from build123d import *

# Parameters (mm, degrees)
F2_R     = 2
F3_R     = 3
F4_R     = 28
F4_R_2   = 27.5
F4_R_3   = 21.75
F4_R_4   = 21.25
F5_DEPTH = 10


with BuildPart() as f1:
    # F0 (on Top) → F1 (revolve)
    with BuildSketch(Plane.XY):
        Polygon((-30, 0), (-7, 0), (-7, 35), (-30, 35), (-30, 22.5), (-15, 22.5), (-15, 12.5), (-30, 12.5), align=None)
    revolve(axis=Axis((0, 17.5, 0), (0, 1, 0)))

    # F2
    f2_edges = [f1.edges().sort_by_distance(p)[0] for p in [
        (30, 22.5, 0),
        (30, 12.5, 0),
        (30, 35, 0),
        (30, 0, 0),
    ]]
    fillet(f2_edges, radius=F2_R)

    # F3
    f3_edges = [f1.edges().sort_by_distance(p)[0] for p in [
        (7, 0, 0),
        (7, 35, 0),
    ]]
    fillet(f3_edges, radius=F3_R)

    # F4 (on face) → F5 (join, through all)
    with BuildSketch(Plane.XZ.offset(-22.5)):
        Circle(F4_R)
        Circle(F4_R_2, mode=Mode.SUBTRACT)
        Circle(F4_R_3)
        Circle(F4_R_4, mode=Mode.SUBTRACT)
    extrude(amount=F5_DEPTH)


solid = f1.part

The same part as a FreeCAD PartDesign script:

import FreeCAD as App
import Part
import Sketcher


def edges_at(feature, points):
    """Names of the edges that pass closest to the given points."""
    edges = feature.Shape.Edges
    near = lambda p: min(range(len(edges)), key=lambda i: edges[i].distToShape(Part.Vertex(*p))[0])
    return sorted({f"Edge{near(p) + 1}" for p in points})


def add_polygon(sketch, points):
    """Adds a closed chain of lines whose ends are joined by coincident constraints."""
    first, n = sketch.GeometryCount, len(points)
    for a, b in zip(points, points[1:] + points[:1]):
        sketch.addGeometry(Part.LineSegment(App.Vector(*a, 0), App.Vector(*b, 0)), False)
    for i in range(n):
        sketch.addConstraint(Sketcher.Constraint("Coincident", first + i, 2, first + (i + 1) % n, 1))

doc = App.newDocument("Part")
body = doc.addObject("PartDesign::Body", "Body")

# Sketch on XY plane
sketch1 = body.newObject("Sketcher::SketchObject", "Sketch")
sketch1.AttachmentSupport = (doc.getObject("XY_Plane"), [""])
sketch1.MapMode = "FlatFace"
add_polygon(sketch1, [(-30, 0), (-7, 0), (-7, 35), (-30, 35), (-30, 22), (-15, 22), (-15, 12), (-30, 12)])  # lines 0-7
sketch1.addConstraint([
    Sketcher.Constraint("Horizontal", 0),
    Sketcher.Constraint("Vertical", 1),
    Sketcher.Constraint("Horizontal", 2),
    Sketcher.Constraint("Vertical", 3),
    Sketcher.Constraint("Horizontal", 4),
    Sketcher.Constraint("Vertical", 5),
    Sketcher.Constraint("Horizontal", 6),
    Sketcher.Constraint("Vertical", 7),
    Sketcher.Constraint("PointOnObject", 0, 2, -1),
    Sketcher.Constraint("Vertical", 3, 2, 6, 2),
    Sketcher.Constraint("Equal", 3, 7),
    Sketcher.Constraint("DistanceX", 0, 1, 0, 2, 23.0),
    Sketcher.Constraint("DistanceX", 4, 1, 4, 2, 15.0),
    Sketcher.Constraint("DistanceY", 1, 1, 1, 2, 35.0),
    Sketcher.Constraint("DistanceY", 5, 2, 5, 1, 10.0),
    Sketcher.Constraint("DistanceX", 0, 2, -1, 1, 7.0),
])
revolution = body.newObject("PartDesign::Revolution", "Revolution")
revolution.Profile = sketch1
revolution.ReferenceAxis = (sketch1, ["V_Axis"])
revolution.Angle = 360
doc.recompute()

fillet = body.newObject("PartDesign::Fillet", "Fillet")
fillet.Base = (revolution, edges_at(revolution, [
    (30, 22.5, 0),
    (30, 12.5, 0),
    (30, 35, 0),
    (30, 0, 0),
]))
fillet.Radius = 2
doc.recompute()

fillet2 = body.newObject("PartDesign::Fillet", "Fillet001")
fillet2.Base = (fillet, edges_at(fillet, [(7, 0, 0), (7, 35, 0)]))
fillet2.Radius = 3

# Sketch on XZ plane
sketch2 = body.newObject("Sketcher::SketchObject", "Sketch001")
sketch2.AttachmentSupport = (doc.getObject("XZ_Plane"), [""])
sketch2.MapMode = "FlatFace"
sketch2.AttachmentOffset = App.Placement(App.Vector(0, 0, -22.5), App.Rotation())
sketch2.addGeometry([
    Part.Circle(App.Vector(0, 0, 0), App.Vector(0, 0, 1), 28),
    Part.Circle(App.Vector(0, 0, 0), App.Vector(0, 0, 1), 28),
    Part.Circle(App.Vector(0, 0, 0), App.Vector(0, 0, 1), 22),
    Part.Circle(App.Vector(0, 0, 0), App.Vector(0, 0, 1), 21),
], False)
sketch2.addConstraint([
    Sketcher.Constraint("Coincident", 0, 3, -1, 1),
    Sketcher.Constraint("Coincident", 1, 3, -1, 1),
    Sketcher.Constraint("Coincident", 2, 3, -1, 1),
    Sketcher.Constraint("Coincident", 3, 3, -1, 1),
    Sketcher.Constraint("Diameter", 0, 56.0),
    Sketcher.Constraint("Diameter", 1, 55.0),
    Sketcher.Constraint("Diameter", 2, 43.5),
    Sketcher.Constraint("Diameter", 3, 42.5),
])
pad1 = body.newObject("PartDesign::Pad", "Pad")
pad1.Profile = sketch2
pad1.Length = 10

doc.recompute()
